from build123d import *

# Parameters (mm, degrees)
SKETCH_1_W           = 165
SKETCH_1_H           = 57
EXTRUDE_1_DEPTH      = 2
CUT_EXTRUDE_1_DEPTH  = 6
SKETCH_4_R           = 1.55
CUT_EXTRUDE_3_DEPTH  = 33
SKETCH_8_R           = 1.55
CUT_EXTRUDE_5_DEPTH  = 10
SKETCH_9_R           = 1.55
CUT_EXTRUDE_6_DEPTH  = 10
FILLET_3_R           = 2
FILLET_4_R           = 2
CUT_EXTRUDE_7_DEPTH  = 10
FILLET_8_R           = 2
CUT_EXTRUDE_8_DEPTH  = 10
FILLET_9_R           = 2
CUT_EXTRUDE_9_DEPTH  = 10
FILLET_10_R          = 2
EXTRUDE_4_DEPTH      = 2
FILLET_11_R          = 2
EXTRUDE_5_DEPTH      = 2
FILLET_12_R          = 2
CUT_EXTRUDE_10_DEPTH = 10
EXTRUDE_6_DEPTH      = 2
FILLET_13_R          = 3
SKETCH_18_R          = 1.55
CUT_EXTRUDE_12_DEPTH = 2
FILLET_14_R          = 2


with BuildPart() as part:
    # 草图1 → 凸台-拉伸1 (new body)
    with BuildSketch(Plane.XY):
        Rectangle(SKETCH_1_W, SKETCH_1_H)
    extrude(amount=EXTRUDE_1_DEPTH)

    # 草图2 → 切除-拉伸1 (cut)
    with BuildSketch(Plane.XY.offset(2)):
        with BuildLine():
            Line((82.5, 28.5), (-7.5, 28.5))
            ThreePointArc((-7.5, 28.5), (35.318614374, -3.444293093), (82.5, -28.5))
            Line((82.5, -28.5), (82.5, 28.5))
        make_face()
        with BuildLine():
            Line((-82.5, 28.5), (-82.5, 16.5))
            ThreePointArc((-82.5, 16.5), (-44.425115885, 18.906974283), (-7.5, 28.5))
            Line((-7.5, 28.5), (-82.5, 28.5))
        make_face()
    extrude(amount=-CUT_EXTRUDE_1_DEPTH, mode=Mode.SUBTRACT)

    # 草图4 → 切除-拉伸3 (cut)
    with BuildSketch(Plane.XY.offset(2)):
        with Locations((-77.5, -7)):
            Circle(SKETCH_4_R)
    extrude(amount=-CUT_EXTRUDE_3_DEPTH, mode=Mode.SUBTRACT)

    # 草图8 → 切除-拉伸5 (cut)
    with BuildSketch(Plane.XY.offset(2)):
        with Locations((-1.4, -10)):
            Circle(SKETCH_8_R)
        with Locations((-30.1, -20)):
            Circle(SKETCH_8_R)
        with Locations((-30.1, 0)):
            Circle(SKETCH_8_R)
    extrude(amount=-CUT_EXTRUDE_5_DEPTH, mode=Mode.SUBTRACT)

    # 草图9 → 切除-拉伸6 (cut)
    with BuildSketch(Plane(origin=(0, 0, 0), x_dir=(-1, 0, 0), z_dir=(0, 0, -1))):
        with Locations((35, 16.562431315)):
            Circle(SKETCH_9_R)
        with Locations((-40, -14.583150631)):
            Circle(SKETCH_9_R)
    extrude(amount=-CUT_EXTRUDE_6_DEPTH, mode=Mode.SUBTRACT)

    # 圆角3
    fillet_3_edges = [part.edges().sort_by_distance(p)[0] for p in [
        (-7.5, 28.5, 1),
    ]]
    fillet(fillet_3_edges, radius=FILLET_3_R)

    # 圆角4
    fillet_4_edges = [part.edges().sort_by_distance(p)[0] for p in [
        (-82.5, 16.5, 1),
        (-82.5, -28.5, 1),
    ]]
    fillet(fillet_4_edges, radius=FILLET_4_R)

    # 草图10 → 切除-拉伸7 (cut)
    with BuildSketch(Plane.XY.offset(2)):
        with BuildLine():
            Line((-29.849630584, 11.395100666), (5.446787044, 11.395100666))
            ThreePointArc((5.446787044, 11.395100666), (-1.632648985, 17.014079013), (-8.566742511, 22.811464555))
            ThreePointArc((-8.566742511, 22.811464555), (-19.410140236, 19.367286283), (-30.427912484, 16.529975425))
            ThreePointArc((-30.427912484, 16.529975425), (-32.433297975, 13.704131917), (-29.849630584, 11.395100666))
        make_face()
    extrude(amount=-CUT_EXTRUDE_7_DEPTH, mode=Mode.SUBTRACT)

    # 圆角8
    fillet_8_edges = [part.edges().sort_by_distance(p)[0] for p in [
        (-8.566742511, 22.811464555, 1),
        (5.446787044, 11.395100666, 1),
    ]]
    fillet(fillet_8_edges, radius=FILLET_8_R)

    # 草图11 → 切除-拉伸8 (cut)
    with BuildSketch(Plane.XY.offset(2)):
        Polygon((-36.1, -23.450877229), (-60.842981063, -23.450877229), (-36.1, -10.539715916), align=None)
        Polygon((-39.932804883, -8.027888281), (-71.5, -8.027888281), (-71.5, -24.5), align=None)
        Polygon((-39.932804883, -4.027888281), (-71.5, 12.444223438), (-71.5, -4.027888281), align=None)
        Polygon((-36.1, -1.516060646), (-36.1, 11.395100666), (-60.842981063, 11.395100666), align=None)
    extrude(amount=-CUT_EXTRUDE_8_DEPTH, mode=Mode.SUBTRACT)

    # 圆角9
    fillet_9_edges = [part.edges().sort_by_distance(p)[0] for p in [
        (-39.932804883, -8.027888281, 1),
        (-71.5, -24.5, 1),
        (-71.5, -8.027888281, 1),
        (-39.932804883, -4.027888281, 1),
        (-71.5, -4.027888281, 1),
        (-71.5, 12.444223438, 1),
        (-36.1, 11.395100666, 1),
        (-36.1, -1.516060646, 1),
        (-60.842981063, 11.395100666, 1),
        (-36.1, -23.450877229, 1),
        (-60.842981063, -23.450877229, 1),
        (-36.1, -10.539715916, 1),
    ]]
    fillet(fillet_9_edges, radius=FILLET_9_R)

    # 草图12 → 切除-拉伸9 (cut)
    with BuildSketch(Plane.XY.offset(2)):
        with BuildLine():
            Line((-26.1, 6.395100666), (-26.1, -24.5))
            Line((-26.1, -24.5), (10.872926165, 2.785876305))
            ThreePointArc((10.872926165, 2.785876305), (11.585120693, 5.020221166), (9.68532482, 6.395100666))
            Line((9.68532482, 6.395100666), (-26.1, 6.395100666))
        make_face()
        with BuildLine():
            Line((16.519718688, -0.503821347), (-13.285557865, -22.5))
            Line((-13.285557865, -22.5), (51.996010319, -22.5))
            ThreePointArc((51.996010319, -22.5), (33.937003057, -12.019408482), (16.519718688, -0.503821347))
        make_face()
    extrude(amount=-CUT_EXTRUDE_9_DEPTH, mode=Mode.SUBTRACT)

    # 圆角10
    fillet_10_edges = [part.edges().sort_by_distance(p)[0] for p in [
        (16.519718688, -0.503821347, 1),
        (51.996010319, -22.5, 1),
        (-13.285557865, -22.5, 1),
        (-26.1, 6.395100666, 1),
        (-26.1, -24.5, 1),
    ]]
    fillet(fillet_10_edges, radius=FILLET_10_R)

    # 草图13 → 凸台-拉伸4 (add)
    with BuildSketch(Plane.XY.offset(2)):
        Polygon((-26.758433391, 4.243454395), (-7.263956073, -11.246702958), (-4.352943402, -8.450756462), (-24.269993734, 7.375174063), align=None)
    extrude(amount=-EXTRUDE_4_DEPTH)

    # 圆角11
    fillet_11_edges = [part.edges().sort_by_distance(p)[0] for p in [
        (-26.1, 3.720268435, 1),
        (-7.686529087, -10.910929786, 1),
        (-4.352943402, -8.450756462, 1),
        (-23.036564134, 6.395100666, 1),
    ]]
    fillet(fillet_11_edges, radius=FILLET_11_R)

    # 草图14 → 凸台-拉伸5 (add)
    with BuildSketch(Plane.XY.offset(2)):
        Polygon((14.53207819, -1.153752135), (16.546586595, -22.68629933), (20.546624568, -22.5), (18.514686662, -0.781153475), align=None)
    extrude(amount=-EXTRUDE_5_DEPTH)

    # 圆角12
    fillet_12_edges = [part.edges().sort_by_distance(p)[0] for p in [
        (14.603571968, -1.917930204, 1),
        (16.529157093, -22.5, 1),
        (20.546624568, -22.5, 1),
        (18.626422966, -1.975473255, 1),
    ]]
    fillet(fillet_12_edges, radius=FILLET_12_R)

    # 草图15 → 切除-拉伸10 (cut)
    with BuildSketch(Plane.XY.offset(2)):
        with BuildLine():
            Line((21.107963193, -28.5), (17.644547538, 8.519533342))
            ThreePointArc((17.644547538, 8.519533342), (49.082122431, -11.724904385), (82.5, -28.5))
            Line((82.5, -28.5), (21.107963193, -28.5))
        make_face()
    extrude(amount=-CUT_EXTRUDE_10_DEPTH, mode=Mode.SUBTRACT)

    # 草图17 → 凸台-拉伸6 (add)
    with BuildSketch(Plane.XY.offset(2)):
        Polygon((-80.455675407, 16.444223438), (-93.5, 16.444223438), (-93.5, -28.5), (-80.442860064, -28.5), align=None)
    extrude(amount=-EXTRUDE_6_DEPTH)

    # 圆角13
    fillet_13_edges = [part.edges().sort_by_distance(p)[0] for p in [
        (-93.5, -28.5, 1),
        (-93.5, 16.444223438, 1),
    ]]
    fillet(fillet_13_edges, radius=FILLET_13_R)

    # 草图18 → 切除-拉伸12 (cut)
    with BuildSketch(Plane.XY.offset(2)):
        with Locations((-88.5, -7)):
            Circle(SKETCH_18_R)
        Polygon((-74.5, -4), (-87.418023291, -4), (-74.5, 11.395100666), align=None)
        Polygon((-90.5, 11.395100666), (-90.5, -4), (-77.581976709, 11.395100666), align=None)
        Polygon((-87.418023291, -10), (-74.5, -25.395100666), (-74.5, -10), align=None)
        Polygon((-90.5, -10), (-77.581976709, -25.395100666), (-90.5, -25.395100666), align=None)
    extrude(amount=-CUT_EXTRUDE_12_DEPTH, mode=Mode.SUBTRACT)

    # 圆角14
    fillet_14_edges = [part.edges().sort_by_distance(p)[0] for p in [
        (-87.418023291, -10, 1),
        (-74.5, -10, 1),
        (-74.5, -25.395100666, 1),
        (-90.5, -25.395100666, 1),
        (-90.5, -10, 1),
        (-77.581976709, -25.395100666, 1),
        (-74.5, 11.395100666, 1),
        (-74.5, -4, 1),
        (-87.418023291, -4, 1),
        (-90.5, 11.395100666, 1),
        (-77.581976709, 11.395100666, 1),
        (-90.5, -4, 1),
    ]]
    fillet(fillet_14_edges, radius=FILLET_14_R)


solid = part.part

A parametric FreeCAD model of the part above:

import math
import FreeCAD as App
import Part
import Sketcher
Q = App.Units.Quantity


def edges_at(feature, points):
    """Names of the edges that pass closest to the given points."""
    edges = feature.Shape.Edges
    near = lambda p: min(range(len(edges)), key=lambda i: edges[i].distToShape(Part.Vertex(*p))[0])
    return sorted({f"Edge{near(p) + 1}" for p in points})

doc = App.newDocument("Part")
body = doc.addObject("PartDesign::Body", "Body")

# Sketch on XY plane
sketch1 = body.newObject("Sketcher::SketchObject", "Sketch")
sketch1.AttachmentSupport = (doc.getObject("XY_Plane"), [""])
sketch1.MapMode = "FlatFace"
sketch1.addGeometry([
    Part.LineSegment(App.Vector(-82.5, 28.5, 0), App.Vector(-82.5, -28.5, 0)),
    Part.LineSegment(App.Vector(-82.5, -28.5, 0), App.Vector(82.5, -28.5, 0)),
    Part.LineSegment(App.Vector(82.5, -28.5, 0), App.Vector(82.5, 28.5, 0)),
    Part.LineSegment(App.Vector(82.5, 28.5, 0), App.Vector(-82.5, 28.5, 0)),
], False)
sketch1.addConstraint([
    Sketcher.Constraint("Coincident", 0, 2, 1, 1),
    Sketcher.Constraint("Coincident", 1, 2, 2, 1),
    Sketcher.Constraint("Coincident", 2, 2, 3, 1),
    Sketcher.Constraint("Coincident", 3, 2, 0, 1),
    Sketcher.Constraint("Vertical", 0),
    Sketcher.Constraint("Horizontal", 1),
    Sketcher.Constraint("Vertical", 2),
    Sketcher.Constraint("Horizontal", 3),
    Sketcher.Constraint("Symmetric", 0, 2, 2, 2, -1, 1),
    Sketcher.Constraint("DistanceX", 1, 1, 1, 2, 165.0),
    Sketcher.Constraint("DistanceY", 0, 2, 0, 1, 57.0),
])
pad1 = body.newObject("PartDesign::Pad", "Pad")
pad1.Profile = sketch1
pad1.Length = 2

# Sketch on XY plane
sketch2 = body.newObject("Sketcher::SketchObject", "Sketch001")
sketch2.AttachmentSupport = (doc.getObject("XY_Plane"), [""])
sketch2.MapMode = "FlatFace"
sketch2.AttachmentOffset = App.Placement(App.Vector(0, 0, 2), App.Rotation())
sketch2.addGeometry([
    Part.LineSegment(App.Vector(82.5, 28.5, 0), App.Vector(-7.5, 28.5, 0)),  # 0
    Part.ArcOfCircle(Part.Circle(App.Vector(222.586843, 292.242383, 0), App.Vector(0, 0, 1), 350), math.radians(-131.101196), math.radians(-113.593691)),  # 1
    Part.LineSegment(App.Vector(82.5, -28.5, 0), App.Vector(82.5, 28.5, 0)),  # 2
    Part.LineSegment(App.Vector(-82.5, 28.5, 0), App.Vector(-82.5, 16.5, 0)),  # 3
    Part.ArcOfCircle(Part.Circle(App.Vector(-76.023216, 216.395101, 0), App.Vector(0, 0, 1), 200), math.radians(-91.855786), math.radians(-69.96366)),  # 4
    Part.LineSegment(App.Vector(-7.5, 28.5, 0), App.Vector(-82.5, 28.5, 0)),  # 5
], False)
sketch2.addConstraint([
    Sketcher.Constraint("Coincident", 0, 2, 1, 1),
    Sketcher.Constraint("Coincident", 1, 2, 2, 1),
    Sketcher.Constraint("Coincident", 2, 2, 0, 1),
    Sketcher.Constraint("Coincident", 3, 2, 4, 1),
    Sketcher.Constraint("Coincident", 4, 2, 5, 1),
    Sketcher.Constraint("Coincident", 5, 2, 3, 1),
    Sketcher.Constraint("Horizontal", 0),
    Sketcher.Constraint("Vertical", 2),
    Sketcher.Constraint("Vertical", 3),
    Sketcher.Constraint("Horizontal", 5),
    Sketcher.Constraint("Coincident", 4, 2, 0, 2),
    Sketcher.Constraint("Symmetric", 1, 2, 5, 2, -1, 1),
    Sketcher.Constraint("Radius", 1, 350.0),
    Sketcher.Constraint("Radius", 4, 200.0),
    Sketcher.Constraint("DistanceX", 0, 2, 0, 1, 90.0),
    Sketcher.Constraint("DistanceX", 5, 2, 5, 1, 75.0),
    Sketcher.Constraint("DistanceY", 2, 1, 2, 2, 57.0),
    Sketcher.Constraint("DistanceY", 3, 2, 3, 1, 12.0),
])
pocket1 = body.newObject("PartDesign::Pocket", "Pocket")
pocket1.Profile = sketch2
pocket1.Length = 6

# Sketch on XY plane
sketch3 = body.newObject("Sketcher::SketchObject", "Sketch002")
sketch3.AttachmentSupport = (doc.getObject("XY_Plane"), [""])
sketch3.MapMode = "FlatFace"
sketch3.AttachmentOffset = App.Placement(App.Vector(0, 0, 2), App.Rotation())
sketch3.addGeometry(Part.Circle(App.Vector(-77.5, -7, 0), App.Vector(0, 0, 1), 1.55), False)
sketch3.addConstraint([
    Sketcher.Constraint("Diameter", 0, 3.1),
    Sketcher.Constraint("DistanceY", 0, 3, -1, 1, 7.0),
    Sketcher.Constraint("DistanceX", 0, 3, -1, 1, 77.5),
])
pocket2 = body.newObject("PartDesign::Pocket", "Pocket001")
pocket2.Profile = sketch3
pocket2.Length = 33

# Sketch on XY plane
sketch4 = body.newObject("Sketcher::SketchObject", "Sketch003")
sketch4.AttachmentSupport = (doc.getObject("XY_Plane"), [""])
sketch4.MapMode = "FlatFace"
sketch4.AttachmentOffset = App.Placement(App.Vector(0, 0, 2), App.Rotation())
sketch4.addGeometry([
    Part.Circle(App.Vector(-1.4, -10, 0), App.Vector(0, 0, 1), 1.55),
    Part.Circle(App.Vector(-30.1, -20, 0), App.Vector(0, 0, 1), 1.55),
    Part.Circle(App.Vector(-30.1, 0, 0), App.Vector(0, 0, 1), 1.55),
], False)
sketch4.addConstraint([
    Sketcher.Constraint("Equal", 0, 1),
    Sketcher.Constraint("Equal", 1, 2),
    Sketcher.Constraint("PointOnObject", 2, 3, -1),
    Sketcher.Constraint("Vertical", 1, 3, 2, 3),
    Sketcher.Constraint("Diameter", 0, 3.1),
    Sketcher.Constraint("DistanceY", 0, 3, -1, 1, 10.0),
    Sketcher.Constraint("DistanceY", 1, 3, -1, 1, 20.0),
    Sketcher.Constraint("DistanceX", 0, 3, -1, 1, 1.4),
    Sketcher.Constraint("DistanceX", 1, 3, -1, 1, 30.1),
])
pocket3 = body.newObject("PartDesign::Pocket", "Pocket002")
pocket3.Profile = sketch4
pocket3.Length = 10

# Sketch on XY plane
sketch5 = body.newObject("Sketcher::SketchObject", "Sketch004")
sketch5.AttachmentSupport = (doc.getObject("XY_Plane"), [""])
sketch5.MapMode = "FlatFace"
sketch5.addGeometry([
    Part.Circle(App.Vector(-35, 16.562431, 0), App.Vector(0, 0, 1), 1.55),
    Part.Circle(App.Vector(40, -14.583151, 0), App.Vector(0, 0, 1), 1.55),
], False)
sketch5.addConstraint([
    Sketcher.Constraint("Equal", 0, 1),
    Sketcher.Constraint("Diameter", 0, 3.1),
    Sketcher.Constraint("DistanceX", 0, 3, -1, 1, 35.0),
    Sketcher.Constraint("DistanceX", -1, 1, 1, 3, 40.0),
    Sketcher.Constraint("DistanceY", -1, 1, 0, 3, 16.562431),
    Sketcher.Constraint("DistanceY", 1, 3, -1, 1, 14.583151),
])
pocket4 = body.newObject("PartDesign::Pocket", "Pocket003")
pocket4.Profile = sketch5
pocket4.Length = 10
pocket4.Reversed = True
doc.recompute()

fillet = body.newObject("PartDesign::Fillet", "Fillet")
fillet.Base = (pocket4, edges_at(pocket4, [(-7.5, 28.5, 1)]))
fillet.Radius = 2
doc.recompute()

fillet2 = body.newObject("PartDesign::Fillet", "Fillet001")
fillet2.Base = (fillet, edges_at(fillet, [(-82.5, 16.5, 1), (-82.5, -28.5, 1)]))
fillet2.Radius = 2

# Sketch on XY plane
sketch6 = body.newObject("Sketcher::SketchObject", "Sketch005")
sketch6.AttachmentSupport = (doc.getObject("XY_Plane"), [""])
sketch6.MapMode = "FlatFace"
sketch6.AttachmentOffset = App.Placement(App.Vector(0, 0, 2), App.Rotation())
sketch6.addGeometry([
    Part.LineSegment(App.Vector(-29.849631, 11.395101, 0), App.Vector(5.446787, 11.395101, 0)),
    Part.ArcOfCircle(Part.Circle(App.Vector(222.586843, 292.242384, 0), App.Vector(0, 0, 1), 355.000001), math.radians(-130.627371), math.radians(-127.709783)),
    Part.ArcOfCircle(Part.Circle(App.Vector(-76.023216, 216.395101, 0), App.Vector(0, 0, 1), 205), math.radians(-77.149017), math.radians(-70.788513)),
    Part.ArcOfCircle(Part.Circle(App.Vector(-29.849631, 13.995101, 0), App.Vector(0, 0, 1), 2.6), math.radians(102.850983), math.radians(270)),
], False)
sketch6.addConstraint([
    Sketcher.Constraint("Coincident", 0, 2, 1, 2),
    Sketcher.Constraint("Coincident", 1, 1, 2, 2),
    Sketcher.Constraint("Tangent", 2, 1, 3, 1),
    Sketcher.Constraint("Tangent", 3, 2, 0, 1),
    Sketcher.Constraint("Horizontal", 0),
    Sketcher.Constraint("Radius", 1, 355.000001),
    Sketcher.Constraint("Radius", 2, 205.0),
    Sketcher.Constraint("Radius", 3, 2.6),
    Sketcher.Constraint("DistanceY", 0, 2, 2, 3, 205.0),
    Sketcher.Constraint("DistanceY", -1, 1, 2, 3, 216.395101),
    Sketcher.Constraint("DistanceX", 2, 1, 0, 2, 35.8747),
    Sketcher.Constraint("DistanceX", 3, 3, -1, 1, 29.849631),
    Sketcher.Constraint("DistanceX", 2, 3, 1, 3, 298.61006),
])
pocket5 = body.newObject("PartDesign::Pocket", "Pocket004")
pocket5.Profile = sketch6
pocket5.Length = 10
doc.recompute()

fillet3 = body.newObject("PartDesign::Fillet", "Fillet002")
fillet3.Base = (pocket5, edges_at(pocket5, [(-8.567, 22.811, 1), (5.447, 11.395, 1)]))
fillet3.Radius = 2

# Sketch on XY plane
sketch7 = body.newObject("Sketcher::SketchObject", "Sketch006")
sketch7.AttachmentSupport = (doc.getObject("XY_Plane"), [""])
sketch7.MapMode = "FlatFace"
sketch7.AttachmentOffset = App.Placement(App.Vector(0, 0, 2), App.Rotation())
sketch7.addGeometry([
    Part.LineSegment(App.Vector(-60.842981, -23.450877, 0), App.Vector(-36.1, -23.450877, 0)),  # 0
    Part.LineSegment(App.Vector(-36.1, -23.450877, 0), App.Vector(-36.1, -10.539716, 0)),  # 1
    Part.LineSegment(App.Vector(-36.1, -10.539716, 0), App.Vector(-60.842981, -23.450877, 0)),  # 2
    Part.LineSegment(App.Vector(-39.932805, -8.027888, 0), App.Vector(-71.5, -8.027888, 0)),  # 3
    Part.LineSegment(App.Vector(-71.5, -8.027888, 0), App.Vector(-71.5, -24.5, 0)),  # 4
    Part.LineSegment(App.Vector(-71.5, -24.5, 0), App.Vector(-39.932805, -8.027888, 0)),  # 5
    Part.LineSegment(App.Vector(-39.932805, -4.027888, 0), App.Vector(-71.5, 12.444223, 0)),  # 6
    Part.LineSegment(App.Vector(-71.5, 12.444223, 0), App.Vector(-71.5, -4.027888, 0)),  # 7
    Part.LineSegment(App.Vector(-71.5, -4.027888, 0), App.Vector(-39.932805, -4.027888, 0)),  # 8
    Part.LineSegment(App.Vector(-36.1, -1.516061, 0), App.Vector(-36.1, 11.395101, 0)),  # 9
    Part.LineSegment(App.Vector(-36.1, 11.395101, 0), App.Vector(-60.842981, 11.395101, 0)),  # 10
    Part.LineSegment(App.Vector(-60.842981, 11.395101, 0), App.Vector(-36.1, -1.516061, 0)),  # 11
], False)
sketch7.addConstraint([
    Sketcher.Constraint("Coincident", 0, 2, 1, 1),
    Sketcher.Constraint("Coincident", 1, 2, 2, 1),
    Sketcher.Constraint("Coincident", 2, 2, 0, 1),
    Sketcher.Constraint("Coincident", 3, 2, 4, 1),
    Sketcher.Constraint("Coincident", 4, 2, 5, 1),
    Sketcher.Constraint("Coincident", 5, 2, 3, 1),
    Sketcher.Constraint("Coincident", 6, 2, 7, 1),
    Sketcher.Constraint("Coincident", 7, 2, 8, 1),
    Sketcher.Constraint("Coincident", 8, 2, 6, 1),
    Sketcher.Constraint("Coincident", 9, 2, 10, 1),
    Sketcher.Constraint("Coincident", 10, 2, 11, 1),
    Sketcher.Constraint("Coincident", 11, 2, 9, 1),
    Sketcher.Constraint("Horizontal", 0),
    Sketcher.Constraint("Vertical", 1),
    Sketcher.Constraint("Horizontal", 3),
    Sketcher.Constraint("Vertical", 4),
    Sketcher.Constraint("Vertical", 7),
    Sketcher.Constraint("Horizontal", 8),
    Sketcher.Constraint("Vertical", 9),
    Sketcher.Constraint("Horizontal", 10),
    Sketcher.Constraint("Parallel", 2, 5),
    Sketcher.Constraint("Parallel", 6, 11),
    Sketcher.Constraint("Vertical", 4, 2, 6, 2),
    Sketcher.Constraint("Vertical", 5, 2, 8, 2),
    Sketcher.Constraint("Vertical", 1, 2, 9, 2),
    Sketcher.Constraint("Vertical", 2, 2, 10, 2),
    Sketcher.Constraint("Equal", 4, 7),
    Sketcher.Constraint("DistanceY", 3, 2, 7, 2, 4.0),
    Sketcher.Constraint("DistanceX", 0, 2, -1, 1, 36.1),
    Sketcher.Constraint("DistanceX", 3, 2, -1, 1, 71.5),
    Sketcher.Constraint("DistanceY", 4, 2, -1, 1, 24.5),
    Sketcher.Constraint("DistanceX", 0, 1, 0, 2, 24.742981),
    Sketcher.Constraint("DistanceY", 1, 1, 1, 2, 12.911161),
    Sketcher.Constraint("DistanceY", 4, 2, 4, 1, 16.472112),
    Sketcher.Constraint("DistanceY", -1, 1, 9, 2, 11.395101),
    Sketcher.Constraint("DistanceY", 2, 2, 6, 2, 35.895101),
])
pocket6 = body.newObject("PartDesign::Pocket", "Pocket005")
pocket6.Profile = sketch7
pocket6.Length = 10
doc.recompute()

fillet4 = body.newObject("PartDesign::Fillet", "Fillet003")
fillet4.Base = (pocket6, edges_at(pocket6, [
    (-39.933, -8.028, 1),
    (-71.5, -24.5, 1),
    (-71.5, -8.028, 1),
    (-39.933, -4.028, 1),
    (-71.5, -4.028, 1),
    (-71.5, 12.444, 1),
    (-36.1, 11.395, 1),
    (-36.1, -1.516, 1),
    (-60.843, 11.395, 1),
    (-36.1, -23.451, 1),
    (-60.843, -23.451, 1),
    (-36.1, -10.54, 1),
]))
fillet4.Radius = 2

# Sketch on XY plane
sketch8 = body.newObject("Sketcher::SketchObject", "Sketch007")
sketch8.AttachmentSupport = (doc.getObject("XY_Plane"), [""])
sketch8.MapMode = "FlatFace"
sketch8.AttachmentOffset = App.Placement(App.Vector(0, 0, 2), App.Rotation())
sketch8.addGeometry([
    Part.LineSegment(App.Vector(-26.1, 6.395101, 0), App.Vector(-26.1, -24.5, 0)),  # 0
    Part.LineSegment(App.Vector(-26.1, -24.5, 0), App.Vector(10.872926, 2.785876, 0)),  # 1
    Part.ArcOfCircle(Part.Circle(App.Vector(9.685325, 4.395101, 0), App.Vector(0, 0, 1), 2), math.radians(-53.572818), math.radians(90)),  # 2
    Part.LineSegment(App.Vector(9.685325, 6.395101, 0), App.Vector(-26.1, 6.395101, 0)),  # 3
    Part.LineSegment(App.Vector(16.519719, -0.503821, 0), App.Vector(-13.285558, -22.5, 0)),  # 4
    Part.LineSegment(App.Vector(-13.285558, -22.5, 0), App.Vector(51.99601, -22.5, 0)),  # 5
    Part.ArcOfCircle(Part.Circle(App.Vector(222.586843, 292.242383, 0), App.Vector(0, 0, 1), 358), math.radians(-125.142116), math.radians(-118.457758)),  # 6
], False)
sketch8.addConstraint([
    Sketcher.Constraint("Coincident", 0, 2, 1, 1),
    Sketcher.Constraint("Coincident", 1, 2, 2, 1),
    Sketcher.Constraint("Coincident", 2, 2, 3, 1),
    Sketcher.Constraint("Coincident", 3, 2, 0, 1),
    Sketcher.Constraint("Coincident", 4, 2, 5, 1),
    Sketcher.Constraint("Coincident", 5, 2, 6, 2),
    Sketcher.Constraint("Coincident", 6, 1, 4, 1),
    Sketcher.Constraint("Vertical", 0),
    Sketcher.Constraint("Horizontal", 3),
    Sketcher.Constraint("Horizontal", 5),
    Sketcher.Constraint("Radius", 2, 2.0),
    Sketcher.Constraint("Radius", 6, 358.0),
    Sketcher.Constraint("DistanceY", 0, 2, 4, 2, 2.0),
    Sketcher.Constraint("DistanceX", 0, 2, -1, 1, 26.1),
    Sketcher.Constraint("DistanceY", 0, 2, -1, 1, 24.5),
    Sketcher.Constraint("DistanceY", 0, 2, 0, 1, 30.895101),
    Sketcher.Constraint("DistanceX", 5, 1, 5, 2, 65.281568),
    Sketcher.Constraint("DistanceX", 2, 3, 1, 2, 1.187601),
    Sketcher.Constraint("DistanceX", 2, 2, 1, 2, 1.187601),
    Sketcher.Constraint("Distance", 1, 45.951238),
    Sketcher.Constraint("DistanceX", -1, 1, 5, 2, 51.99601),
    Sketcher.Constraint("DistanceX", -1, 1, 6, 1, 16.519719),
    Sketcher.Constraint("Distance", 4, 37.043034),
])
pocket7 = body.newObject("PartDesign::Pocket", "Pocket006")
pocket7.Profile = sketch8
pocket7.Length = 10
doc.recompute()

fillet5 = body.newObject("PartDesign::Fillet", "Fillet004")
fillet5.Base = (pocket7, edges_at(pocket7, [
    (16.52, -0.504, 1),
    (51.996, -22.5, 1),
    (-13.286, -22.5, 1),
    (-26.1, 6.395, 1),
    (-26.1, -24.5, 1),
]))
fillet5.Radius = 2

# Sketch on XY plane
sketch9 = body.newObject("Sketcher::SketchObject", "Sketch008")
sketch9.AttachmentSupport = (doc.getObject("XY_Plane"), [""])
sketch9.MapMode = "FlatFace"
sketch9.AttachmentOffset = App.Placement(App.Vector(0, 0, 2), App.Rotation())
sketch9.addGeometry([
    Part.LineSegment(App.Vector(-26.758433, 4.243454, 0), App.Vector(-7.263956, -11.246703, 0)),
    Part.LineSegment(App.Vector(-7.263956, -11.246703, 0), App.Vector(-4.352943, -8.450756, 0)),
    Part.LineSegment(App.Vector(-4.352943, -8.450756, 0), App.Vector(-24.269994, 7.375174, 0)),
    Part.LineSegment(App.Vector(-24.269994, 7.375174, 0), App.Vector(-26.758433, 4.243454, 0)),
], False)
sketch9.addConstraint([
    Sketcher.Constraint("Coincident", 0, 2, 1, 1),
    Sketcher.Constraint("Coincident", 1, 2, 2, 1),
    Sketcher.Constraint("Coincident", 2, 2, 3, 1),
    Sketcher.Constraint("Coincident", 3, 2, 0, 1),
    Sketcher.Constraint("Parallel", 0, 2),
    Sketcher.Constraint("Perpendicular", 2, 3),
    Sketcher.Constraint("Distance", 3, 4.0),
    Sketcher.Constraint("Distance", 0, 24.89939),
    Sketcher.Constraint("Distance", 1, 4.03625),
    Sketcher.Constraint("DistanceX", 2, 2, 1, 2, 19.91705),
    Sketcher.Constraint("DistanceX", 0, 2, -1, 1, 7.263956),
    Sketcher.Constraint("DistanceY", 0, 2, -1, 1, 11.246703),
])
pad2 = body.newObject("PartDesign::Pad", "Pad001")
pad2.Profile = sketch9
pad2.Length = 2
pad2.Reversed = True
doc.recompute()

fillet6 = body.newObject("PartDesign::Fillet", "Fillet005")
fillet6.Base = (pad2, edges_at(pad2, [
    (-26.1, 3.72, 1),
    (-7.687, -10.911, 1),
    (-4.353, -8.451, 1),
    (-23.037, 6.395, 1),
]))
fillet6.Radius = 2

# Sketch on XY plane
sketch10 = body.newObject("Sketcher::SketchObject", "Sketch009")
sketch10.AttachmentSupport = (doc.getObject("XY_Plane"), [""])
sketch10.MapMode = "FlatFace"
sketch10.AttachmentOffset = App.Placement(App.Vector(0, 0, 2), App.Rotation())
sketch10.addGeometry([
    Part.LineSegment(App.Vector(14.532078, -1.153752, 0), App.Vector(16.546587, -22.686299, 0)),
    Part.LineSegment(App.Vector(16.546587, -22.686299, 0), App.Vector(20.546625, -22.5, 0)),
    Part.LineSegment(App.Vector(20.546625, -22.5, 0), App.Vector(18.514687, -0.781153, 0)),
    Part.LineSegment(App.Vector(18.514687, -0.781153, 0), App.Vector(14.532078, -1.153752, 0)),
], False)
sketch10.addConstraint([
    Sketcher.Constraint("Coincident", 0, 2, 1, 1),
    Sketcher.Constraint("Coincident", 1, 2, 2, 1),
    Sketcher.Constraint("Coincident", 2, 2, 3, 1),
    Sketcher.Constraint("Coincident", 3, 2, 0, 1),
    Sketcher.Constraint("Parallel", 0, 2),
    Sketcher.Constraint("Perpendicular", 2, 3),
    Sketcher.Constraint("Distance", 3, 4.0),
    Sketcher.Constraint("DistanceY", 1, 2, -1, 1, 22.5),
    Sketcher.Constraint("DistanceY", 0, 2, -1, 1, 22.686299),
    Sketcher.Constraint("DistanceX", 0, 2, 2, 2, 1.9681),
    Sketcher.Constraint("DistanceY", 3, 2, 2, 2, 0.372599),
    Sketcher.Constraint("DistanceX", -1, 1, 3, 2, 14.532078),
])
pad3 = body.newObject("PartDesign::Pad", "Pad002")
pad3.Profile = sketch10
pad3.Length = 2
pad3.Reversed = True
doc.recompute()

fillet7 = body.newObject("PartDesign::Fillet", "Fillet006")
fillet7.Base = (pad3, edges_at(pad3, [
    (14.604, -1.918, 1),
    (16.529, -22.5, 1),
    (20.547, -22.5, 1),
    (18.626, -1.975, 1),
]))
fillet7.Radius = 2

# Sketch on XY plane
sketch11 = body.newObject("Sketcher::SketchObject", "Sketch010")
sketch11.AttachmentSupport = (doc.getObject("XY_Plane"), [""])
sketch11.MapMode = "FlatFace"
sketch11.AttachmentOffset = App.Placement(App.Vector(0, 0, 2), App.Rotation())
sketch11.addGeometry([
    Part.LineSegment(App.Vector(17.644548, 8.519533, 0), App.Vector(21.107963, -28.5, 0)),
    Part.LineSegment(App.Vector(21.107963, -28.5, 0), App.Vector(82.5, -28.5, 0)),
    Part.ArcOfCircle(Part.Circle(App.Vector(222.586843, 292.242383, 0), App.Vector(0, 0, 1), 350), math.radians(-125.841813), math.radians(-113.593691)),
], False)
sketch11.addConstraint([
    Sketcher.Constraint("Coincident", 0, 2, 1, 1),
    Sketcher.Constraint("Coincident", 1, 2, 2, 2),
    Sketcher.Constraint("Coincident", 2, 1, 0, 1),
    Sketcher.Constraint("Horizontal", 1),
    Sketcher.Constraint("Radius", 2, 350.0),
    Sketcher.Constraint("DistanceY", 0, 2, -1, 1, 28.5),
    Sketcher.Constraint("DistanceX", -1, 1, 1, 2, 82.5),
    Sketcher.Constraint("DistanceX", 1, 1, 1, 2, 61.392037),
    Sketcher.Constraint("DistanceX", 0, 2, 2, 3, 201.47888),
    Sketcher.Constraint("DistanceY", 2, 1, 2, 3, 283.72285),
])
pocket8 = body.newObject("PartDesign::Pocket", "Pocket007")
pocket8.Profile = sketch11
pocket8.Length = 10

# Sketch on XY plane
sketch12 = body.newObject("Sketcher::SketchObject", "Sketch011")
sketch12.AttachmentSupport = (doc.getObject("XY_Plane"), [""])
sketch12.MapMode = "FlatFace"
sketch12.AttachmentOffset = App.Placement(App.Vector(0, 0, 2), App.Rotation())
sketch12.addGeometry([
    Part.LineSegment(App.Vector(-80.455675, 16.444223, 0), App.Vector(-93.5, 16.444223, 0)),
    Part.LineSegment(App.Vector(-93.5, 16.444223, 0), App.Vector(-93.5, -28.5, 0)),
    Part.LineSegment(App.Vector(-93.5, -28.5, 0), App.Vector(-80.44286, -28.5, 0)),
    Part.LineSegment(App.Vector(-80.44286, -28.5, 0), App.Vector(-80.455675, 16.444223, 0)),
], False)
sketch12.addConstraint([
    Sketcher.Constraint("Coincident", 0, 2, 1, 1),
    Sketcher.Constraint("Coincident", 1, 2, 2, 1),
    Sketcher.Constraint("Coincident", 2, 2, 3, 1),
    Sketcher.Constraint("Coincident", 3, 2, 0, 1),
    Sketcher.Constraint("Horizontal", 0),
    Sketcher.Constraint("Vertical", 1),
    Sketcher.Constraint("Horizontal", 2),
    Sketcher.Constraint("DistanceX", 0, 2, -1, 1, 93.5),
    Sketcher.Constraint("DistanceY", 1, 2, -1, 1, 28.5),
    Sketcher.Constraint("DistanceX", 2, 1, 2, 2, 13.05714),
    Sketcher.Constraint("DistanceX", 0, 2, 0, 1, 13.044325),
    Sketcher.Constraint("DistanceY", 1, 2, 1, 1, 44.944223),
])
pad4 = body.newObject("PartDesign::Pad", "Pad003")
pad4.Profile = sketch12
pad4.Length = 2
pad4.Reversed = True
doc.recompute()

fillet8 = body.newObject("PartDesign::Fillet", "Fillet007")
fillet8.Base = (pad4, edges_at(pad4, [(-93.5, -28.5, 1), (-93.5, 16.444, 1)]))
fillet8.Radius = 3

# Sketch on XY plane
sketch13 = body.newObject("Sketcher::SketchObject", "Sketch012")
sketch13.AttachmentSupport = (doc.getObject("XY_Plane"), [""])
sketch13.MapMode = "FlatFace"
sketch13.AttachmentOffset = App.Placement(App.Vector(0, 0, 2), App.Rotation())
sketch13.addGeometry([
    Part.Circle(App.Vector(-88.5, -7, 0), App.Vector(0, 0, 1), 1.55),  # 0
    Part.LineSegment(App.Vector(-87.418023, -4, 0), App.Vector(-74.5, -4, 0)),  # 1
    Part.LineSegment(App.Vector(-74.5, -4, 0), App.Vector(-74.5, 11.395101, 0)),  # 2
    Part.LineSegment(App.Vector(-74.5, 11.395101, 0), App.Vector(-87.418023, -4, 0)),  # 3
    Part.LineSegment(App.Vector(-90.5, 11.395101, 0), App.Vector(-90.5, -4, 0)),  # 4
    Part.LineSegment(App.Vector(-90.5, -4, 0), App.Vector(-77.581977, 11.395101, 0)),  # 5
    Part.LineSegment(App.Vector(-77.581977, 11.395101, 0), App.Vector(-90.5, 11.395101, 0)),  # 6
    Part.LineSegment(App.Vector(-87.418023, -10, 0), App.Vector(-74.5, -25.395101, 0)),  # 7
    Part.LineSegment(App.Vector(-74.5, -25.395101, 0), App.Vector(-74.5, -10, 0)),  # 8
    Part.LineSegment(App.Vector(-74.5, -10, 0), App.Vector(-87.418023, -10, 0)),  # 9
    Part.LineSegment(App.Vector(-77.581977, -25.395101, 0), App.Vector(-90.5, -10, 0)),  # 10
    Part.LineSegment(App.Vector(-90.5, -10, 0), App.Vector(-90.5, -25.395101, 0)),  # 11
    Part.LineSegment(App.Vector(-90.5, -25.395101, 0), App.Vector(-77.581977, -25.395101, 0)),  # 12
], False)
sketch13.addConstraint([
    Sketcher.Constraint("Coincident", 1, 2, 2, 1),
    Sketcher.Constraint("Coincident", 2, 2, 3, 1),
    Sketcher.Constraint("Coincident", 3, 2, 1, 1),
    Sketcher.Constraint("Coincident", 4, 2, 5, 1),
    Sketcher.Constraint("Coincident", 5, 2, 6, 1),
    Sketcher.Constraint("Coincident", 6, 2, 4, 1),
    Sketcher.Constraint("Coincident", 7, 2, 8, 1),
    Sketcher.Constraint("Coincident", 8, 2, 9, 1),
    Sketcher.Constraint("Coincident", 9, 2, 7, 1),
    Sketcher.Constraint("Coincident", 10, 2, 11, 1),
    Sketcher.Constraint("Coincident", 11, 2, 12, 1),
    Sketcher.Constraint("Coincident", 12, 2, 10, 1),
    Sketcher.Constraint("Horizontal", 1),
    Sketcher.Constraint("Vertical", 2),
    Sketcher.Constraint("Vertical", 4),
    Sketcher.Constraint("Horizontal", 6),
    Sketcher.Constraint("Vertical", 8),
    Sketcher.Constraint("Horizontal", 9),
    Sketcher.Constraint("Vertical", 11),
    Sketcher.Constraint("Horizontal", 12),
    Sketcher.Constraint("Parallel", 3, 5),
    Sketcher.Constraint("Parallel", 7, 10),
    Sketcher.Constraint("Horizontal", 3, 2, 4, 2),
    Sketcher.Constraint("Horizontal", 2, 2, 5, 2),
    Sketcher.Constraint("Horizontal", 9, 2, 10, 2),
    Sketcher.Constraint("Horizontal", 7, 2, 11, 2),
    Sketcher.Constraint("Vertical", 2, 2, 7, 2),
    Sketcher.Constraint("Vertical", 3, 2, 9, 2),
    Sketcher.Constraint("Vertical", 6, 2, 10, 2),
    Sketcher.Constraint("Equal", 4, 8),
    Sketcher.Constraint("Diameter", 0, 3.1),
    Sketcher.Constraint("Angle", 3, Q("-130 deg")),
    Sketcher.Constraint("DistanceY", 0, 3, -1, 1, 7.0),
    Sketcher.Constraint("DistanceY", 1, 2, -1, 1, 4.0),
    Sketcher.Constraint("DistanceY", 8, 2, -1, 1, 10.0),
    Sketcher.Constraint("DistanceX", 0, 3, 1, 2, 14.0),
    Sketcher.Constraint("DistanceX", 4, 2, 0, 3, 2.0),
    Sketcher.Constraint("DistanceX", 0, 3, -1, 1, 88.5),
    Sketcher.Constraint("DistanceY", 2, 1, 2, 2, 15.395101),
])
pocket9 = body.newObject("PartDesign::Pocket", "Pocket008")
pocket9.Profile = sketch13
pocket9.Length = 2
doc.recompute()

fillet9 = body.newObject("PartDesign::Fillet", "Fillet008")
fillet9.Base = (pocket9, edges_at(pocket9, [
    (-87.418, -10, 1),
    (-74.5, -10, 1),
    (-74.5, -25.395, 1),
    (-90.5, -25.395, 1),
    (-90.5, -10, 1),
    (-77.582, -25.395, 1),
    (-74.5, 11.395, 1),
    (-74.5, -4, 1),
    (-87.418, -4, 1),
    (-90.5, 11.395, 1),
    (-77.582, 11.395, 1),
    (-90.5, -4, 1),
]))
fillet9.Radius = 2

doc.recompute()
